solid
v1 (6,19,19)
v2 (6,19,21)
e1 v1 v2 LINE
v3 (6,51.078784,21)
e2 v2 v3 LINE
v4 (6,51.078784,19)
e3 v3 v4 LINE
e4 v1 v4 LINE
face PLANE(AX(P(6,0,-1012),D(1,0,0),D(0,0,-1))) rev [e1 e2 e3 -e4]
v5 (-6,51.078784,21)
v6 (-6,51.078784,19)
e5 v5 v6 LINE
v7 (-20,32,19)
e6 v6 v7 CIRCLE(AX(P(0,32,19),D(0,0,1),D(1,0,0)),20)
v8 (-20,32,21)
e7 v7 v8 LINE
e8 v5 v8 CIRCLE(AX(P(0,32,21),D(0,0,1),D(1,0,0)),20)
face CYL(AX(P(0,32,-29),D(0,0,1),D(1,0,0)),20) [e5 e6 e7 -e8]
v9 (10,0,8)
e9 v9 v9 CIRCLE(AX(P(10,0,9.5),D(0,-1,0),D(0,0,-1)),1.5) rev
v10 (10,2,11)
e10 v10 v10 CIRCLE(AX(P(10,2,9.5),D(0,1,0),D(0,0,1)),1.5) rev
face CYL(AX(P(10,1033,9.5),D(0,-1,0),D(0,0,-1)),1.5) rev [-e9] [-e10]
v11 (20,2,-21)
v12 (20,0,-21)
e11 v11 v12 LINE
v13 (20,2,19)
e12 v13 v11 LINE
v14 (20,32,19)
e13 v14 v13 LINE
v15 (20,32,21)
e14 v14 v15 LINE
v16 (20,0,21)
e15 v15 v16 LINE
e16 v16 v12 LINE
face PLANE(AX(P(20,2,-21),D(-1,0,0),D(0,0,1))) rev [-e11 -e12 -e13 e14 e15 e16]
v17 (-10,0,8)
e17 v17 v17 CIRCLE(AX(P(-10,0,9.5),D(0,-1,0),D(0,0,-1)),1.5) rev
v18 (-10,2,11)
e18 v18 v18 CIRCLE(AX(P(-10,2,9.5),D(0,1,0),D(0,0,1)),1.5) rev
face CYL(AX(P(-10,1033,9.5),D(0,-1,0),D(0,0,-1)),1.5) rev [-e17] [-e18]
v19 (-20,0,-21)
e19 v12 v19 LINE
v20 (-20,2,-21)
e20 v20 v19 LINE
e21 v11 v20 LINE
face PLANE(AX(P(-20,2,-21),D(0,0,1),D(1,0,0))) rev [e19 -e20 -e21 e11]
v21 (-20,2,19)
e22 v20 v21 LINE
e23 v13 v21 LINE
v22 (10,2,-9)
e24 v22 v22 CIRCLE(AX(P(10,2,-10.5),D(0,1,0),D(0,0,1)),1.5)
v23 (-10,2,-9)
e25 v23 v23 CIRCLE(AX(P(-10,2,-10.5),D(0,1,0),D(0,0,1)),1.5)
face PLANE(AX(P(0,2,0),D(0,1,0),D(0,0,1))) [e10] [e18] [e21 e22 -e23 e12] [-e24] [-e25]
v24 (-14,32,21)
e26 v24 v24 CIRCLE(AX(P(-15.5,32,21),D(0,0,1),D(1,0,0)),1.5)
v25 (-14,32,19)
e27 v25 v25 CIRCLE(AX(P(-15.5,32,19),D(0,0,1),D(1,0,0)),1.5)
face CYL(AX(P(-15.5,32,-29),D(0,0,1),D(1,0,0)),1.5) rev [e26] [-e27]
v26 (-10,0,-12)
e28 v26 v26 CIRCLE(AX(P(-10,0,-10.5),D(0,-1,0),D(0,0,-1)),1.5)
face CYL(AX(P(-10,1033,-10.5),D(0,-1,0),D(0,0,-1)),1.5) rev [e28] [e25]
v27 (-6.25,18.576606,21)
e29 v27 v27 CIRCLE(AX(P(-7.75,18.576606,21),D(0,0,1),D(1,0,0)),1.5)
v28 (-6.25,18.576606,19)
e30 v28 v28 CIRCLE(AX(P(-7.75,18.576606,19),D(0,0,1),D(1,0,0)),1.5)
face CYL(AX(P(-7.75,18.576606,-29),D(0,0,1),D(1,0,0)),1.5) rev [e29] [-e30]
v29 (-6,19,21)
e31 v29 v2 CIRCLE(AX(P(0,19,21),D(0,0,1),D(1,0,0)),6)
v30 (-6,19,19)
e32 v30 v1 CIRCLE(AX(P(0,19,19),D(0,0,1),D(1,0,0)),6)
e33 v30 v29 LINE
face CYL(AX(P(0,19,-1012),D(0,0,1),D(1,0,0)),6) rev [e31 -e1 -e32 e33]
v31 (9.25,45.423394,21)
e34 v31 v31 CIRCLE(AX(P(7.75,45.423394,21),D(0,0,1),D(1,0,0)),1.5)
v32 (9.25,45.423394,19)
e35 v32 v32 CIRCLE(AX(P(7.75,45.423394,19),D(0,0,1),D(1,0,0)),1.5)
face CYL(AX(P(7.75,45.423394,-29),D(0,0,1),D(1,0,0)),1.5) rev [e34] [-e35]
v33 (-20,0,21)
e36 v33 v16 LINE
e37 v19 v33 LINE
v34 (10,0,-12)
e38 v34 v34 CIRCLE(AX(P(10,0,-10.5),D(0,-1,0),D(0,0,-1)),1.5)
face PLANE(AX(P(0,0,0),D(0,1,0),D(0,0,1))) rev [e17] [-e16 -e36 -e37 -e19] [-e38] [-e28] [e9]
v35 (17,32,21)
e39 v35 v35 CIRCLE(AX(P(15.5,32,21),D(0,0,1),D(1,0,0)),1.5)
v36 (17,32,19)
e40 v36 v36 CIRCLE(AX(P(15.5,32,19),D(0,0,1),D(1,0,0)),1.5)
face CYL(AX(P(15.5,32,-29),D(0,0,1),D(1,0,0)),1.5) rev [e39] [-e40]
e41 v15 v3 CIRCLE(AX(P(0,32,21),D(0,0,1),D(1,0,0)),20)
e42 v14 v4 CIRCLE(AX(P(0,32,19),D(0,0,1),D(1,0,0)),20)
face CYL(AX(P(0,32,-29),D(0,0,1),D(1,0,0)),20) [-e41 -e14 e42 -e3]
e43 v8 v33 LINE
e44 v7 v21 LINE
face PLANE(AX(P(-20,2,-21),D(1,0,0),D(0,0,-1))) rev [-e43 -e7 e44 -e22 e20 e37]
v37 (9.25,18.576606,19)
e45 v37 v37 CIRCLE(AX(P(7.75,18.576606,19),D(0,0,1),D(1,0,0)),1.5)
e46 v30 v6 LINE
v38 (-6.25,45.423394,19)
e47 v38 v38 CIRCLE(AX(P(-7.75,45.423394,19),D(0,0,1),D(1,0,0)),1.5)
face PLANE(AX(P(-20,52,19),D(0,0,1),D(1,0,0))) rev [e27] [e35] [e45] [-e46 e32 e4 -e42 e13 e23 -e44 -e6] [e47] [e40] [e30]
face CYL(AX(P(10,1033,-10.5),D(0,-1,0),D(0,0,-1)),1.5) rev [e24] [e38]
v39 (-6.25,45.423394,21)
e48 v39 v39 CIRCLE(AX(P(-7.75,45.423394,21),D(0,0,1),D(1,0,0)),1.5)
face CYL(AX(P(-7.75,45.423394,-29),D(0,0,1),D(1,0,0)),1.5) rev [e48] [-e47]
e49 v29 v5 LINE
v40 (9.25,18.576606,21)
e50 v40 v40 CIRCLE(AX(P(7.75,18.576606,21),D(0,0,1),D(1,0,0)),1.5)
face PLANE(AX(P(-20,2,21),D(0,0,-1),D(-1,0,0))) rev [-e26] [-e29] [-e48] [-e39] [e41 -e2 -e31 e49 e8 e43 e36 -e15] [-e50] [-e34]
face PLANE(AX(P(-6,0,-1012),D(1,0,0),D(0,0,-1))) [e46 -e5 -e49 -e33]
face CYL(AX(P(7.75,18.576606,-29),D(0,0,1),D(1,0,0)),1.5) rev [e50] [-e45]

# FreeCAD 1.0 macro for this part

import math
import FreeCAD as App
import Part
import Sketcher


def add_polygon(sketch, points):
    """Adds a closed chain of lines whose ends are joined by coincident constraints."""
    first, n = sketch.GeometryCount, len(points)
    for a, b in zip(points, points[1:] + points[:1]):
        sketch.addGeometry(Part.LineSegment(App.Vector(*a, 0), App.Vector(*b, 0)), False)
    for i in range(n):
        sketch.addConstraint(Sketcher.Constraint("Coincident", first + i, 2, first + (i + 1) % n, 1))

doc = App.newDocument("Part")
params = doc.addObject("Spreadsheet::Sheet", "Params")
for row, (alias, value) in enumerate([
    ("sketch1_width", "40 mm"),
    ("sketch1_height", "42 mm"),
    ("pad1_length", "2 mm"),
    ("sketch2_width", "40 mm"),
    ("sketch2_height", "2 mm"),
    ("pad2_length", "50 mm"),
    ("sketch3_radius", "20 mm"),
    ("pocket1_length", "50 mm"),
    ("sketch4_diameter", "3 mm"),
    ("pocket2_length", "50 mm"),
    ("sketch5_radius", "20 mm"),
    ("sketch5_radius2", "6 mm"),
    ("pocket3_length", "1033 mm"),
    ("sketch6_diameter", "3 mm"),
    ("pocket4_length", "1033 mm"),
], start=1):
    params.set(f"A{row}", alias)
    params.set(f"B{row}", "=" + value)
    params.setAlias(f"B{row}", alias)

body = doc.addObject("PartDesign::Body", "Body")

sketch1 = body.newObject("Sketcher::SketchObject", "Sketch")
sketch1.AttachmentSupport = (doc.getObject("XZ_Plane"), [""])
sketch1.MapMode = "FlatFace"
add_polygon(sketch1, [(-20, -21), (-20, 21), (20, 21), (20, -21)])
sketch1.addConstraint(Sketcher.Constraint("Vertical", 0))
sketch1.addConstraint(Sketcher.Constraint("Horizontal", 1))
sketch1.addConstraint(Sketcher.Constraint("Vertical", 2))
sketch1.addConstraint(Sketcher.Constraint("Horizontal", 3))
sketch1.addConstraint(Sketcher.Constraint("Symmetric", 0, 2, 2, 2, -1, 1))
sketch1.addConstraint(Sketcher.Constraint("DistanceX", 1, 1, 1, 2, 40.0))
sketch1.addConstraint(Sketcher.Constraint("DistanceY", 0, 1, 0, 2, 42.0))
sketch1.setExpression("Constraints[9]", "Params.sketch1_width")
sketch1.setExpression("Constraints[10]", "Params.sketch1_height")
pad1 = body.newObject("PartDesign::Pad", "Pad")
pad1.Profile = sketch1
pad1.setExpression("Length", "Params.pad1_length")
pad1.Reversed = True

sketch2 = body.newObject("Sketcher::SketchObject", "Sketch001")
sketch2.AttachmentSupport = (doc.getObject("XZ_Plane"), [""])
sketch2.MapMode = "FlatFace"
sketch2.AttachmentOffset = App.Placement(App.Vector(0, 0, -2), App.Rotation())
add_polygon(sketch2, [(-20, 19), (-20, 21), (20, 21), (20, 19)])
sketch2.addConstraint(Sketcher.Constraint("Vertical", 0))
sketch2.addConstraint(Sketcher.Constraint("Horizontal", 1))
sketch2.addConstraint(Sketcher.Constraint("Vertical", 2))
sketch2.addConstraint(Sketcher.Constraint("Horizontal", 3))
sketch2.addConstraint(Sketcher.Constraint("DistanceX", 1, 1, 1, 2, 40.0))
sketch2.addConstraint(Sketcher.Constraint("DistanceY", 0, 1, 0, 2, 2.0))
sketch2.addConstraint(Sketcher.Constraint("DistanceX", 0, 2, -1, 1, 20.0))
sketch2.addConstraint(Sketcher.Constraint("DistanceY", -1, 1, 0, 2, 21.0))
sketch2.setExpression("Constraints[8]", "Params.sketch2_width")
sketch2.setExpression("Constraints[9]", "Params.sketch2_height")
pad2 = body.newObject("PartDesign::Pad", "Pad001")
pad2.Profile = sketch2
pad2.setExpression("Length", "Params.pad2_length")
pad2.Reversed = True

sketch3 = body.newObject("Sketcher::SketchObject", "Sketch002")
sketch3.AttachmentSupport = (doc.getObject("XY_Plane"), [""])
sketch3.MapMode = "FlatFace"
sketch3.AttachmentOffset = App.Placement(App.Vector(0, 0, 21), App.Rotation())
sketch3.addGeometry(Part.LineSegment(App.Vector(-20, 52, 0), App.Vector(-20, 32, 0)), False)
sketch3.addGeometry(Part.ArcOfCircle(Part.Circle(App.Vector(0, 32, 0), App.Vector(0, 0, 1), 20), math.radians(90), math.radians(180)), False)
sketch3.addGeometry(Part.LineSegment(App.Vector(0, 52, 0), App.Vector(-20, 52, 0)), False)
sketch3.addGeometry(Part.LineSegment(App.Vector(20, 52, 0), App.Vector(0, 52, 0)), False)
sketch3.addGeometry(Part.ArcOfCircle(Part.Circle(App.Vector(0, 32, 0), App.Vector(0, 0, 1), 20), math.radians(0), math.radians(90)), False)
sketch3.addGeometry(Part.LineSegment(App.Vector(20, 32, 0), App.Vector(20, 52, 0)), False)
sketch3.addConstraint(Sketcher.Constraint("Tangent", 0, 2, 1, 2))
sketch3.addConstraint(Sketcher.Constraint("Tangent", 1, 1, 2, 1))
sketch3.addConstraint(Sketcher.Constraint("Coincident", 2, 2, 0, 1))
sketch3.addConstraint(Sketcher.Constraint("Tangent", 3, 2, 4, 2))
sketch3.addConstraint(Sketcher.Constraint("Tangent", 4, 1, 5, 1))
sketch3.addConstraint(Sketcher.Constraint("Coincident", 5, 2, 3, 1))
sketch3.addConstraint(Sketcher.Constraint("Vertical", 0))
sketch3.addConstraint(Sketcher.Constraint("Horizontal", 2))
sketch3.addConstraint(Sketcher.Constraint("Horizontal", 3))
sketch3.addConstraint(Sketcher.Constraint("Vertical", 5))
sketch3.addConstraint(Sketcher.Constraint("Coincident", 4, 3, 1, 3))
sketch3.addConstraint(Sketcher.Constraint("Equal", 1, 4))
sketch3.addConstraint(Sketcher.Constraint("PointOnObject", 1, 3, -2))
sketch3.addConstraint(Sketcher.Constraint("Radius", 1, 20.0))
sketch3.addConstraint(Sketcher.Constraint("DistanceY", -1, 1, 1, 3, 32.0))
sketch3.setExpression("Constraints[13]", "Params.sketch3_radius")
pocket1 = body.newObject("PartDesign::Pocket", "Pocket")
pocket1.Profile = sketch3
pocket1.setExpression("Length", "Params.pocket1_length")

sketch4 = body.newObject("Sketcher::SketchObject", "Sketch003")
sketch4.AttachmentSupport = (doc.getObject("XY_Plane"), [""])
sketch4.MapMode = "FlatFace"
sketch4.AttachmentOffset = App.Placement(App.Vector(0, 0, 21), App.Rotation())
sketch4.addGeometry(Part.Circle(App.Vector(-15.5, 32, 0), App.Vector(0, 0, 1), 1.5), False)
sketch4.addGeometry(Part.Circle(App.Vector(15.5, 32, 0), App.Vector(0, 0, 1), 1.5), False)
sketch4.addGeometry(Part.Circle(App.Vector(7.75, 18.576606, 0), App.Vector(0, 0, 1), 1.5), False)
sketch4.addGeometry(Part.Circle(App.Vector(-7.75, 18.576606, 0), App.Vector(0, 0, 1), 1.5), False)
sketch4.addGeometry(Part.Circle(App.Vector(-7.75, 45.423394, 0), App.Vector(0, 0, 1), 1.5), False)
sketch4.addGeometry(Part.Circle(App.Vector(7.75, 45.423394, 0), App.Vector(0, 0, 1), 1.5), False)
sketch4.addConstraint(Sketcher.Constraint("Equal", 0, 1))
sketch4.addConstraint(Sketcher.Constraint("Equal", 1, 2))
sketch4.addConstraint(Sketcher.Constraint("Equal", 2, 3))
sketch4.addConstraint(Sketcher.Constraint("Equal", 3, 4))
sketch4.addConstraint(Sketcher.Constraint("Equal", 4, 5))
sketch4.addConstraint(Sketcher.Constraint("Symmetric", 0, 3, 1, 3, -2))
sketch4.addConstraint(Sketcher.Constraint("Symmetric", 2, 3, 3, 3, -2))
sketch4.addConstraint(Sketcher.Constraint("Symmetric", 4, 3, 5, 3, -2))
sketch4.addConstraint(Sketcher.Constraint("Vertical", 3, 3, 4, 3))
sketch4.addConstraint(Sketcher.Constraint("Diameter", 0, 3.0))
sketch4.addConstraint(Sketcher.Constraint("DistanceY", -1, 1, 0, 3, 32.0))
sketch4.addConstraint(Sketcher.Constraint("DistanceX", 0, 3, 1, 3, 31.0))
sketch4.addConstraint(Sketcher.Constraint("DistanceX", 3, 3, 2, 3, 15.5))
sketch4.addConstraint(Sketcher.Constraint("DistanceY", -1, 1, 2, 3, 18.576606))
sketch4.addConstraint(Sketcher.Constraint("DistanceY", -1, 1, 4, 3, 45.423394))
sketch4.setExpression("Constraints[9]", "Params.sketch4_diameter")
pocket2 = body.newObject("PartDesign::Pocket", "Pocket001")
pocket2.Profile = sketch4
pocket2.setExpression("Length", "Params.pocket2_length")

sketch5 = body.newObject("Sketcher::SketchObject", "Sketch004")
sketch5.AttachmentSupport = (doc.getObject("XY_Plane"), [""])
sketch5.MapMode = "FlatFace"
sketch5.AttachmentOffset = App.Placement(App.Vector(0, 0, 21), App.Rotation())
sketch5.addGeometry(Part.ArcOfCircle(Part.Circle(App.Vector(0, 32, 0), App.Vector(0, 0, 1), 20), math.radians(72.542397), math.radians(107.457603)), False)
sketch5.addGeometry(Part.LineSegment(App.Vector(-6, 51.078784, 0), App.Vector(-6, 19, 0)), False)
sketch5.addGeometry(Part.ArcOfCircle(Part.Circle(App.Vector(0, 19, 0), App.Vector(0, 0, 1), 6), math.radians(180), math.radians(360)), False)
sketch5.addGeometry(Part.LineSegment(App.Vector(6, 19, 0), App.Vector(6, 51.078784, 0)), False)
sketch5.addConstraint(Sketcher.Constraint("Coincident", 0, 2, 1, 1))
sketch5.addConstraint(Sketcher.Constraint("Tangent", 1, 2, 2, 1))
sketch5.addConstraint(Sketcher.Constraint("Tangent", 2, 2, 3, 1))
sketch5.addConstraint(Sketcher.Constraint("Coincident", 3, 2, 0, 1))
sketch5.addConstraint(Sketcher.Constraint("Vertical", 1))
sketch5.addConstraint(Sketcher.Constraint("Vertical", 3))
sketch5.addConstraint(Sketcher.Constraint("Symmetric", 0, 2, 3, 2, -2))
sketch5.addConstraint(Sketcher.Constraint("Radius", 0, 20.0))
sketch5.addConstraint(Sketcher.Constraint("Radius", 2, 6.0))
sketch5.addConstraint(Sketcher.Constraint("DistanceY", -1, 1, 0, 3, 32.0))
sketch5.addConstraint(Sketcher.Constraint("DistanceY", -1, 1, 2, 3, 19.0))
sketch5.setExpression("Constraints[7]", "Params.sketch5_radius")
sketch5.setExpression("Constraints[8]", "Params.sketch5_radius2")
pocket3 = body.newObject("PartDesign::Pocket", "Pocket002")
pocket3.Profile = sketch5
pocket3.setExpression("Length", "Params.pocket3_length")

sketch6 = body.newObject("Sketcher::SketchObject", "Sketch005")
sketch6.AttachmentSupport = (doc.getObject("XZ_Plane"), [""])
sketch6.MapMode = "FlatFace"
sketch6.addGeometry(Part.Circle(App.Vector(-10, 9.5, 0), App.Vector(0, 0, 1), 1.5), False)
sketch6.addGeometry(Part.Circle(App.Vector(10, 9.5, 0), App.Vector(0, 0, 1), 1.5), False)
sketch6.addGeometry(Part.Circle(App.Vector(10, -10.5, 0), App.Vector(0, 0, 1), 1.5), False)
sketch6.addGeometry(Part.Circle(App.Vector(-10, -10.5, 0), App.Vector(0, 0, 1), 1.5), False)
sketch6.addConstraint(Sketcher.Constraint("Equal", 0, 1))
sketch6.addConstraint(Sketcher.Constraint("Equal", 1, 2))
sketch6.addConstraint(Sketcher.Constraint("Equal", 2, 3))
sketch6.addConstraint(Sketcher.Constraint("Symmetric", 0, 3, 1, 3, -2))
sketch6.addConstraint(Sketcher.Constraint("Symmetric", 2, 3, 3, 3, -2))
sketch6.addConstraint(Sketcher.Constraint("Vertical", 1, 3, 2, 3))
sketch6.addConstraint(Sketcher.Constraint("Diameter", 0, 3.0))
sketch6.addConstraint(Sketcher.Constraint("DistanceX", 0, 3, -1, 1, 10.0))
sketch6.addConstraint(Sketcher.Constraint("DistanceY", 2, 3, 1, 3, 20.0))
sketch6.addConstraint(Sketcher.Constraint("DistanceY", -1, 1, 0, 3, 9.5))
sketch6.setExpression("Constraints[6]", "Params.sketch6_diameter")
pocket4 = body.newObject("PartDesign::Pocket", "Pocket003")
pocket4.Profile = sketch6
pocket4.setExpression("Length", "Params.pocket4_length")

doc.recompute()
